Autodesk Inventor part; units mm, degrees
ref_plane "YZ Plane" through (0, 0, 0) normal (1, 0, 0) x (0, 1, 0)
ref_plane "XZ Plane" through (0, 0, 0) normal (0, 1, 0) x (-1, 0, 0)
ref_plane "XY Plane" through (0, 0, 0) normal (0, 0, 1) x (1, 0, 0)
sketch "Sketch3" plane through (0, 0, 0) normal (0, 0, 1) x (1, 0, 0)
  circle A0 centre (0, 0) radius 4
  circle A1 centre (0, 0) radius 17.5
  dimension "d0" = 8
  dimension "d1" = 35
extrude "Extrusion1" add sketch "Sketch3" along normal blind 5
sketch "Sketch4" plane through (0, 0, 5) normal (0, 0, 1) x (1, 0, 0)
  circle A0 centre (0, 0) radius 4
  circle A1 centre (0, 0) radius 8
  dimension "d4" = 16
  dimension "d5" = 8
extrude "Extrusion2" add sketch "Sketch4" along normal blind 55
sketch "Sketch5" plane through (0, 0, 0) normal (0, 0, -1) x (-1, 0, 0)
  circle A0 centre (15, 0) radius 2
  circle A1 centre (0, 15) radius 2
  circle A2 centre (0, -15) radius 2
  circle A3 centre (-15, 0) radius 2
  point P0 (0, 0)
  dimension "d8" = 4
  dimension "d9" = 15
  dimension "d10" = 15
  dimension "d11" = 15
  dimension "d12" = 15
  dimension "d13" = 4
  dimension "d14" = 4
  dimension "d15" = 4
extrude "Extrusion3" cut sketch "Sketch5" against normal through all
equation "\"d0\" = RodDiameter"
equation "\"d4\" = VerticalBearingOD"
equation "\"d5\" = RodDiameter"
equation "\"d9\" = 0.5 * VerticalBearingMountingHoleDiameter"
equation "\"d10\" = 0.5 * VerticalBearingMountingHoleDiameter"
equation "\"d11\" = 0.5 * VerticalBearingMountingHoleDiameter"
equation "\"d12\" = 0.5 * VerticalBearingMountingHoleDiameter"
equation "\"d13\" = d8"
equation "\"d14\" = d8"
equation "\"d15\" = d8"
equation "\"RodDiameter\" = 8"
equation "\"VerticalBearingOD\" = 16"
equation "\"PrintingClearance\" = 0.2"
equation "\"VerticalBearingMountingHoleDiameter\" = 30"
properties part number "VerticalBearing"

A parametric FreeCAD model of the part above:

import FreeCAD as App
import Part
import Sketcher

V = App.Vector

doc = App.newDocument("Part")
body = doc.addObject("PartDesign::Body", "Body")

# Sketch on XY plane
sketch1 = body.newObject("Sketcher::SketchObject", "Sketch")
sketch1.AttachmentSupport = (doc.getObject("XY_Plane"), [""])
sketch1.MapMode = "FlatFace"
sketch1.addGeometry([
    Part.Circle(V(0, 0, 0), V(0, 0, 1), 17.5),
    Part.Circle(V(0, 0, 0), V(0, 0, 1), 4),
], False)
sketch1.addConstraint([
    Sketcher.Constraint("Coincident", 0, 3, -1, 1),
    Sketcher.Constraint("Coincident", 1, 3, -1, 1),
    Sketcher.Constraint("Diameter", 0, 35.0),
    Sketcher.Constraint("Diameter", 1, 8.0),
])
pad1 = body.newObject("PartDesign::Pad", "Pad")
pad1.Profile = sketch1
pad1.Length = 5

# Sketch on XY plane
sketch2 = body.newObject("Sketcher::SketchObject", "Sketch001")
sketch2.AttachmentSupport = (doc.getObject("XY_Plane"), [""])
sketch2.MapMode = "FlatFace"
sketch2.AttachmentOffset = App.Placement(V(0, 0, 5), App.Rotation())
sketch2.addGeometry([
    Part.Circle(V(0, 0, 0), V(0, 0, 1), 8),
    Part.Circle(V(0, 0, 0), V(0, 0, 1), 4),
], False)
sketch2.addConstraint([
    Sketcher.Constraint("Coincident", 0, 3, -1, 1),
    Sketcher.Constraint("Coincident", 1, 3, -1, 1),
    Sketcher.Constraint("Diameter", 0, 16.0),
    Sketcher.Constraint("Diameter", 1, 8.0),
])
pad2 = body.newObject("PartDesign::Pad", "Pad001")
pad2.Profile = sketch2
pad2.Length = 55

# Sketch on XY plane
sketch3 = body.newObject("Sketcher::SketchObject", "Sketch002")
sketch3.AttachmentSupport = (doc.getObject("XY_Plane"), [""])
sketch3.MapMode = "FlatFace"
sketch3.addGeometry([
    Part.Circle(V(-15, 0, 0), V(0, 0, 1), 2),
    Part.Circle(V(0, 15, 0), V(0, 0, 1), 2),
    Part.Circle(V(0, -15, 0), V(0, 0, 1), 2),
    Part.Circle(V(15, 0, 0), V(0, 0, 1), 2),
], False)
sketch3.addConstraint([
    Sketcher.Constraint("Equal", 0, 1),
    Sketcher.Constraint("Equal", 1, 2),
    Sketcher.Constraint("Equal", 2, 3),
    Sketcher.Constraint("Symmetric", 1, 3, 2, 3, -1, 1),
    Sketcher.Constraint("Symmetric", 0, 3, 3, 3, -1, 1),
    Sketcher.Constraint("PointOnObject", 0, 3, -1),
    Sketcher.Constraint("PointOnObject", 1, 3, -2),
    Sketcher.Constraint("Diameter", 0, 4.0),
    Sketcher.Constraint("DistanceX", 0, 3, -1, 1, 15.0),
    Sketcher.Constraint("DistanceY", -1, 1, 1, 3, 15.0),
])
pocket1 = body.newObject("PartDesign::Pocket", "Pocket")
pocket1.Profile = sketch3
pocket1.Type = "ThroughAll"
pocket1.Reversed = True

doc.recompute()
